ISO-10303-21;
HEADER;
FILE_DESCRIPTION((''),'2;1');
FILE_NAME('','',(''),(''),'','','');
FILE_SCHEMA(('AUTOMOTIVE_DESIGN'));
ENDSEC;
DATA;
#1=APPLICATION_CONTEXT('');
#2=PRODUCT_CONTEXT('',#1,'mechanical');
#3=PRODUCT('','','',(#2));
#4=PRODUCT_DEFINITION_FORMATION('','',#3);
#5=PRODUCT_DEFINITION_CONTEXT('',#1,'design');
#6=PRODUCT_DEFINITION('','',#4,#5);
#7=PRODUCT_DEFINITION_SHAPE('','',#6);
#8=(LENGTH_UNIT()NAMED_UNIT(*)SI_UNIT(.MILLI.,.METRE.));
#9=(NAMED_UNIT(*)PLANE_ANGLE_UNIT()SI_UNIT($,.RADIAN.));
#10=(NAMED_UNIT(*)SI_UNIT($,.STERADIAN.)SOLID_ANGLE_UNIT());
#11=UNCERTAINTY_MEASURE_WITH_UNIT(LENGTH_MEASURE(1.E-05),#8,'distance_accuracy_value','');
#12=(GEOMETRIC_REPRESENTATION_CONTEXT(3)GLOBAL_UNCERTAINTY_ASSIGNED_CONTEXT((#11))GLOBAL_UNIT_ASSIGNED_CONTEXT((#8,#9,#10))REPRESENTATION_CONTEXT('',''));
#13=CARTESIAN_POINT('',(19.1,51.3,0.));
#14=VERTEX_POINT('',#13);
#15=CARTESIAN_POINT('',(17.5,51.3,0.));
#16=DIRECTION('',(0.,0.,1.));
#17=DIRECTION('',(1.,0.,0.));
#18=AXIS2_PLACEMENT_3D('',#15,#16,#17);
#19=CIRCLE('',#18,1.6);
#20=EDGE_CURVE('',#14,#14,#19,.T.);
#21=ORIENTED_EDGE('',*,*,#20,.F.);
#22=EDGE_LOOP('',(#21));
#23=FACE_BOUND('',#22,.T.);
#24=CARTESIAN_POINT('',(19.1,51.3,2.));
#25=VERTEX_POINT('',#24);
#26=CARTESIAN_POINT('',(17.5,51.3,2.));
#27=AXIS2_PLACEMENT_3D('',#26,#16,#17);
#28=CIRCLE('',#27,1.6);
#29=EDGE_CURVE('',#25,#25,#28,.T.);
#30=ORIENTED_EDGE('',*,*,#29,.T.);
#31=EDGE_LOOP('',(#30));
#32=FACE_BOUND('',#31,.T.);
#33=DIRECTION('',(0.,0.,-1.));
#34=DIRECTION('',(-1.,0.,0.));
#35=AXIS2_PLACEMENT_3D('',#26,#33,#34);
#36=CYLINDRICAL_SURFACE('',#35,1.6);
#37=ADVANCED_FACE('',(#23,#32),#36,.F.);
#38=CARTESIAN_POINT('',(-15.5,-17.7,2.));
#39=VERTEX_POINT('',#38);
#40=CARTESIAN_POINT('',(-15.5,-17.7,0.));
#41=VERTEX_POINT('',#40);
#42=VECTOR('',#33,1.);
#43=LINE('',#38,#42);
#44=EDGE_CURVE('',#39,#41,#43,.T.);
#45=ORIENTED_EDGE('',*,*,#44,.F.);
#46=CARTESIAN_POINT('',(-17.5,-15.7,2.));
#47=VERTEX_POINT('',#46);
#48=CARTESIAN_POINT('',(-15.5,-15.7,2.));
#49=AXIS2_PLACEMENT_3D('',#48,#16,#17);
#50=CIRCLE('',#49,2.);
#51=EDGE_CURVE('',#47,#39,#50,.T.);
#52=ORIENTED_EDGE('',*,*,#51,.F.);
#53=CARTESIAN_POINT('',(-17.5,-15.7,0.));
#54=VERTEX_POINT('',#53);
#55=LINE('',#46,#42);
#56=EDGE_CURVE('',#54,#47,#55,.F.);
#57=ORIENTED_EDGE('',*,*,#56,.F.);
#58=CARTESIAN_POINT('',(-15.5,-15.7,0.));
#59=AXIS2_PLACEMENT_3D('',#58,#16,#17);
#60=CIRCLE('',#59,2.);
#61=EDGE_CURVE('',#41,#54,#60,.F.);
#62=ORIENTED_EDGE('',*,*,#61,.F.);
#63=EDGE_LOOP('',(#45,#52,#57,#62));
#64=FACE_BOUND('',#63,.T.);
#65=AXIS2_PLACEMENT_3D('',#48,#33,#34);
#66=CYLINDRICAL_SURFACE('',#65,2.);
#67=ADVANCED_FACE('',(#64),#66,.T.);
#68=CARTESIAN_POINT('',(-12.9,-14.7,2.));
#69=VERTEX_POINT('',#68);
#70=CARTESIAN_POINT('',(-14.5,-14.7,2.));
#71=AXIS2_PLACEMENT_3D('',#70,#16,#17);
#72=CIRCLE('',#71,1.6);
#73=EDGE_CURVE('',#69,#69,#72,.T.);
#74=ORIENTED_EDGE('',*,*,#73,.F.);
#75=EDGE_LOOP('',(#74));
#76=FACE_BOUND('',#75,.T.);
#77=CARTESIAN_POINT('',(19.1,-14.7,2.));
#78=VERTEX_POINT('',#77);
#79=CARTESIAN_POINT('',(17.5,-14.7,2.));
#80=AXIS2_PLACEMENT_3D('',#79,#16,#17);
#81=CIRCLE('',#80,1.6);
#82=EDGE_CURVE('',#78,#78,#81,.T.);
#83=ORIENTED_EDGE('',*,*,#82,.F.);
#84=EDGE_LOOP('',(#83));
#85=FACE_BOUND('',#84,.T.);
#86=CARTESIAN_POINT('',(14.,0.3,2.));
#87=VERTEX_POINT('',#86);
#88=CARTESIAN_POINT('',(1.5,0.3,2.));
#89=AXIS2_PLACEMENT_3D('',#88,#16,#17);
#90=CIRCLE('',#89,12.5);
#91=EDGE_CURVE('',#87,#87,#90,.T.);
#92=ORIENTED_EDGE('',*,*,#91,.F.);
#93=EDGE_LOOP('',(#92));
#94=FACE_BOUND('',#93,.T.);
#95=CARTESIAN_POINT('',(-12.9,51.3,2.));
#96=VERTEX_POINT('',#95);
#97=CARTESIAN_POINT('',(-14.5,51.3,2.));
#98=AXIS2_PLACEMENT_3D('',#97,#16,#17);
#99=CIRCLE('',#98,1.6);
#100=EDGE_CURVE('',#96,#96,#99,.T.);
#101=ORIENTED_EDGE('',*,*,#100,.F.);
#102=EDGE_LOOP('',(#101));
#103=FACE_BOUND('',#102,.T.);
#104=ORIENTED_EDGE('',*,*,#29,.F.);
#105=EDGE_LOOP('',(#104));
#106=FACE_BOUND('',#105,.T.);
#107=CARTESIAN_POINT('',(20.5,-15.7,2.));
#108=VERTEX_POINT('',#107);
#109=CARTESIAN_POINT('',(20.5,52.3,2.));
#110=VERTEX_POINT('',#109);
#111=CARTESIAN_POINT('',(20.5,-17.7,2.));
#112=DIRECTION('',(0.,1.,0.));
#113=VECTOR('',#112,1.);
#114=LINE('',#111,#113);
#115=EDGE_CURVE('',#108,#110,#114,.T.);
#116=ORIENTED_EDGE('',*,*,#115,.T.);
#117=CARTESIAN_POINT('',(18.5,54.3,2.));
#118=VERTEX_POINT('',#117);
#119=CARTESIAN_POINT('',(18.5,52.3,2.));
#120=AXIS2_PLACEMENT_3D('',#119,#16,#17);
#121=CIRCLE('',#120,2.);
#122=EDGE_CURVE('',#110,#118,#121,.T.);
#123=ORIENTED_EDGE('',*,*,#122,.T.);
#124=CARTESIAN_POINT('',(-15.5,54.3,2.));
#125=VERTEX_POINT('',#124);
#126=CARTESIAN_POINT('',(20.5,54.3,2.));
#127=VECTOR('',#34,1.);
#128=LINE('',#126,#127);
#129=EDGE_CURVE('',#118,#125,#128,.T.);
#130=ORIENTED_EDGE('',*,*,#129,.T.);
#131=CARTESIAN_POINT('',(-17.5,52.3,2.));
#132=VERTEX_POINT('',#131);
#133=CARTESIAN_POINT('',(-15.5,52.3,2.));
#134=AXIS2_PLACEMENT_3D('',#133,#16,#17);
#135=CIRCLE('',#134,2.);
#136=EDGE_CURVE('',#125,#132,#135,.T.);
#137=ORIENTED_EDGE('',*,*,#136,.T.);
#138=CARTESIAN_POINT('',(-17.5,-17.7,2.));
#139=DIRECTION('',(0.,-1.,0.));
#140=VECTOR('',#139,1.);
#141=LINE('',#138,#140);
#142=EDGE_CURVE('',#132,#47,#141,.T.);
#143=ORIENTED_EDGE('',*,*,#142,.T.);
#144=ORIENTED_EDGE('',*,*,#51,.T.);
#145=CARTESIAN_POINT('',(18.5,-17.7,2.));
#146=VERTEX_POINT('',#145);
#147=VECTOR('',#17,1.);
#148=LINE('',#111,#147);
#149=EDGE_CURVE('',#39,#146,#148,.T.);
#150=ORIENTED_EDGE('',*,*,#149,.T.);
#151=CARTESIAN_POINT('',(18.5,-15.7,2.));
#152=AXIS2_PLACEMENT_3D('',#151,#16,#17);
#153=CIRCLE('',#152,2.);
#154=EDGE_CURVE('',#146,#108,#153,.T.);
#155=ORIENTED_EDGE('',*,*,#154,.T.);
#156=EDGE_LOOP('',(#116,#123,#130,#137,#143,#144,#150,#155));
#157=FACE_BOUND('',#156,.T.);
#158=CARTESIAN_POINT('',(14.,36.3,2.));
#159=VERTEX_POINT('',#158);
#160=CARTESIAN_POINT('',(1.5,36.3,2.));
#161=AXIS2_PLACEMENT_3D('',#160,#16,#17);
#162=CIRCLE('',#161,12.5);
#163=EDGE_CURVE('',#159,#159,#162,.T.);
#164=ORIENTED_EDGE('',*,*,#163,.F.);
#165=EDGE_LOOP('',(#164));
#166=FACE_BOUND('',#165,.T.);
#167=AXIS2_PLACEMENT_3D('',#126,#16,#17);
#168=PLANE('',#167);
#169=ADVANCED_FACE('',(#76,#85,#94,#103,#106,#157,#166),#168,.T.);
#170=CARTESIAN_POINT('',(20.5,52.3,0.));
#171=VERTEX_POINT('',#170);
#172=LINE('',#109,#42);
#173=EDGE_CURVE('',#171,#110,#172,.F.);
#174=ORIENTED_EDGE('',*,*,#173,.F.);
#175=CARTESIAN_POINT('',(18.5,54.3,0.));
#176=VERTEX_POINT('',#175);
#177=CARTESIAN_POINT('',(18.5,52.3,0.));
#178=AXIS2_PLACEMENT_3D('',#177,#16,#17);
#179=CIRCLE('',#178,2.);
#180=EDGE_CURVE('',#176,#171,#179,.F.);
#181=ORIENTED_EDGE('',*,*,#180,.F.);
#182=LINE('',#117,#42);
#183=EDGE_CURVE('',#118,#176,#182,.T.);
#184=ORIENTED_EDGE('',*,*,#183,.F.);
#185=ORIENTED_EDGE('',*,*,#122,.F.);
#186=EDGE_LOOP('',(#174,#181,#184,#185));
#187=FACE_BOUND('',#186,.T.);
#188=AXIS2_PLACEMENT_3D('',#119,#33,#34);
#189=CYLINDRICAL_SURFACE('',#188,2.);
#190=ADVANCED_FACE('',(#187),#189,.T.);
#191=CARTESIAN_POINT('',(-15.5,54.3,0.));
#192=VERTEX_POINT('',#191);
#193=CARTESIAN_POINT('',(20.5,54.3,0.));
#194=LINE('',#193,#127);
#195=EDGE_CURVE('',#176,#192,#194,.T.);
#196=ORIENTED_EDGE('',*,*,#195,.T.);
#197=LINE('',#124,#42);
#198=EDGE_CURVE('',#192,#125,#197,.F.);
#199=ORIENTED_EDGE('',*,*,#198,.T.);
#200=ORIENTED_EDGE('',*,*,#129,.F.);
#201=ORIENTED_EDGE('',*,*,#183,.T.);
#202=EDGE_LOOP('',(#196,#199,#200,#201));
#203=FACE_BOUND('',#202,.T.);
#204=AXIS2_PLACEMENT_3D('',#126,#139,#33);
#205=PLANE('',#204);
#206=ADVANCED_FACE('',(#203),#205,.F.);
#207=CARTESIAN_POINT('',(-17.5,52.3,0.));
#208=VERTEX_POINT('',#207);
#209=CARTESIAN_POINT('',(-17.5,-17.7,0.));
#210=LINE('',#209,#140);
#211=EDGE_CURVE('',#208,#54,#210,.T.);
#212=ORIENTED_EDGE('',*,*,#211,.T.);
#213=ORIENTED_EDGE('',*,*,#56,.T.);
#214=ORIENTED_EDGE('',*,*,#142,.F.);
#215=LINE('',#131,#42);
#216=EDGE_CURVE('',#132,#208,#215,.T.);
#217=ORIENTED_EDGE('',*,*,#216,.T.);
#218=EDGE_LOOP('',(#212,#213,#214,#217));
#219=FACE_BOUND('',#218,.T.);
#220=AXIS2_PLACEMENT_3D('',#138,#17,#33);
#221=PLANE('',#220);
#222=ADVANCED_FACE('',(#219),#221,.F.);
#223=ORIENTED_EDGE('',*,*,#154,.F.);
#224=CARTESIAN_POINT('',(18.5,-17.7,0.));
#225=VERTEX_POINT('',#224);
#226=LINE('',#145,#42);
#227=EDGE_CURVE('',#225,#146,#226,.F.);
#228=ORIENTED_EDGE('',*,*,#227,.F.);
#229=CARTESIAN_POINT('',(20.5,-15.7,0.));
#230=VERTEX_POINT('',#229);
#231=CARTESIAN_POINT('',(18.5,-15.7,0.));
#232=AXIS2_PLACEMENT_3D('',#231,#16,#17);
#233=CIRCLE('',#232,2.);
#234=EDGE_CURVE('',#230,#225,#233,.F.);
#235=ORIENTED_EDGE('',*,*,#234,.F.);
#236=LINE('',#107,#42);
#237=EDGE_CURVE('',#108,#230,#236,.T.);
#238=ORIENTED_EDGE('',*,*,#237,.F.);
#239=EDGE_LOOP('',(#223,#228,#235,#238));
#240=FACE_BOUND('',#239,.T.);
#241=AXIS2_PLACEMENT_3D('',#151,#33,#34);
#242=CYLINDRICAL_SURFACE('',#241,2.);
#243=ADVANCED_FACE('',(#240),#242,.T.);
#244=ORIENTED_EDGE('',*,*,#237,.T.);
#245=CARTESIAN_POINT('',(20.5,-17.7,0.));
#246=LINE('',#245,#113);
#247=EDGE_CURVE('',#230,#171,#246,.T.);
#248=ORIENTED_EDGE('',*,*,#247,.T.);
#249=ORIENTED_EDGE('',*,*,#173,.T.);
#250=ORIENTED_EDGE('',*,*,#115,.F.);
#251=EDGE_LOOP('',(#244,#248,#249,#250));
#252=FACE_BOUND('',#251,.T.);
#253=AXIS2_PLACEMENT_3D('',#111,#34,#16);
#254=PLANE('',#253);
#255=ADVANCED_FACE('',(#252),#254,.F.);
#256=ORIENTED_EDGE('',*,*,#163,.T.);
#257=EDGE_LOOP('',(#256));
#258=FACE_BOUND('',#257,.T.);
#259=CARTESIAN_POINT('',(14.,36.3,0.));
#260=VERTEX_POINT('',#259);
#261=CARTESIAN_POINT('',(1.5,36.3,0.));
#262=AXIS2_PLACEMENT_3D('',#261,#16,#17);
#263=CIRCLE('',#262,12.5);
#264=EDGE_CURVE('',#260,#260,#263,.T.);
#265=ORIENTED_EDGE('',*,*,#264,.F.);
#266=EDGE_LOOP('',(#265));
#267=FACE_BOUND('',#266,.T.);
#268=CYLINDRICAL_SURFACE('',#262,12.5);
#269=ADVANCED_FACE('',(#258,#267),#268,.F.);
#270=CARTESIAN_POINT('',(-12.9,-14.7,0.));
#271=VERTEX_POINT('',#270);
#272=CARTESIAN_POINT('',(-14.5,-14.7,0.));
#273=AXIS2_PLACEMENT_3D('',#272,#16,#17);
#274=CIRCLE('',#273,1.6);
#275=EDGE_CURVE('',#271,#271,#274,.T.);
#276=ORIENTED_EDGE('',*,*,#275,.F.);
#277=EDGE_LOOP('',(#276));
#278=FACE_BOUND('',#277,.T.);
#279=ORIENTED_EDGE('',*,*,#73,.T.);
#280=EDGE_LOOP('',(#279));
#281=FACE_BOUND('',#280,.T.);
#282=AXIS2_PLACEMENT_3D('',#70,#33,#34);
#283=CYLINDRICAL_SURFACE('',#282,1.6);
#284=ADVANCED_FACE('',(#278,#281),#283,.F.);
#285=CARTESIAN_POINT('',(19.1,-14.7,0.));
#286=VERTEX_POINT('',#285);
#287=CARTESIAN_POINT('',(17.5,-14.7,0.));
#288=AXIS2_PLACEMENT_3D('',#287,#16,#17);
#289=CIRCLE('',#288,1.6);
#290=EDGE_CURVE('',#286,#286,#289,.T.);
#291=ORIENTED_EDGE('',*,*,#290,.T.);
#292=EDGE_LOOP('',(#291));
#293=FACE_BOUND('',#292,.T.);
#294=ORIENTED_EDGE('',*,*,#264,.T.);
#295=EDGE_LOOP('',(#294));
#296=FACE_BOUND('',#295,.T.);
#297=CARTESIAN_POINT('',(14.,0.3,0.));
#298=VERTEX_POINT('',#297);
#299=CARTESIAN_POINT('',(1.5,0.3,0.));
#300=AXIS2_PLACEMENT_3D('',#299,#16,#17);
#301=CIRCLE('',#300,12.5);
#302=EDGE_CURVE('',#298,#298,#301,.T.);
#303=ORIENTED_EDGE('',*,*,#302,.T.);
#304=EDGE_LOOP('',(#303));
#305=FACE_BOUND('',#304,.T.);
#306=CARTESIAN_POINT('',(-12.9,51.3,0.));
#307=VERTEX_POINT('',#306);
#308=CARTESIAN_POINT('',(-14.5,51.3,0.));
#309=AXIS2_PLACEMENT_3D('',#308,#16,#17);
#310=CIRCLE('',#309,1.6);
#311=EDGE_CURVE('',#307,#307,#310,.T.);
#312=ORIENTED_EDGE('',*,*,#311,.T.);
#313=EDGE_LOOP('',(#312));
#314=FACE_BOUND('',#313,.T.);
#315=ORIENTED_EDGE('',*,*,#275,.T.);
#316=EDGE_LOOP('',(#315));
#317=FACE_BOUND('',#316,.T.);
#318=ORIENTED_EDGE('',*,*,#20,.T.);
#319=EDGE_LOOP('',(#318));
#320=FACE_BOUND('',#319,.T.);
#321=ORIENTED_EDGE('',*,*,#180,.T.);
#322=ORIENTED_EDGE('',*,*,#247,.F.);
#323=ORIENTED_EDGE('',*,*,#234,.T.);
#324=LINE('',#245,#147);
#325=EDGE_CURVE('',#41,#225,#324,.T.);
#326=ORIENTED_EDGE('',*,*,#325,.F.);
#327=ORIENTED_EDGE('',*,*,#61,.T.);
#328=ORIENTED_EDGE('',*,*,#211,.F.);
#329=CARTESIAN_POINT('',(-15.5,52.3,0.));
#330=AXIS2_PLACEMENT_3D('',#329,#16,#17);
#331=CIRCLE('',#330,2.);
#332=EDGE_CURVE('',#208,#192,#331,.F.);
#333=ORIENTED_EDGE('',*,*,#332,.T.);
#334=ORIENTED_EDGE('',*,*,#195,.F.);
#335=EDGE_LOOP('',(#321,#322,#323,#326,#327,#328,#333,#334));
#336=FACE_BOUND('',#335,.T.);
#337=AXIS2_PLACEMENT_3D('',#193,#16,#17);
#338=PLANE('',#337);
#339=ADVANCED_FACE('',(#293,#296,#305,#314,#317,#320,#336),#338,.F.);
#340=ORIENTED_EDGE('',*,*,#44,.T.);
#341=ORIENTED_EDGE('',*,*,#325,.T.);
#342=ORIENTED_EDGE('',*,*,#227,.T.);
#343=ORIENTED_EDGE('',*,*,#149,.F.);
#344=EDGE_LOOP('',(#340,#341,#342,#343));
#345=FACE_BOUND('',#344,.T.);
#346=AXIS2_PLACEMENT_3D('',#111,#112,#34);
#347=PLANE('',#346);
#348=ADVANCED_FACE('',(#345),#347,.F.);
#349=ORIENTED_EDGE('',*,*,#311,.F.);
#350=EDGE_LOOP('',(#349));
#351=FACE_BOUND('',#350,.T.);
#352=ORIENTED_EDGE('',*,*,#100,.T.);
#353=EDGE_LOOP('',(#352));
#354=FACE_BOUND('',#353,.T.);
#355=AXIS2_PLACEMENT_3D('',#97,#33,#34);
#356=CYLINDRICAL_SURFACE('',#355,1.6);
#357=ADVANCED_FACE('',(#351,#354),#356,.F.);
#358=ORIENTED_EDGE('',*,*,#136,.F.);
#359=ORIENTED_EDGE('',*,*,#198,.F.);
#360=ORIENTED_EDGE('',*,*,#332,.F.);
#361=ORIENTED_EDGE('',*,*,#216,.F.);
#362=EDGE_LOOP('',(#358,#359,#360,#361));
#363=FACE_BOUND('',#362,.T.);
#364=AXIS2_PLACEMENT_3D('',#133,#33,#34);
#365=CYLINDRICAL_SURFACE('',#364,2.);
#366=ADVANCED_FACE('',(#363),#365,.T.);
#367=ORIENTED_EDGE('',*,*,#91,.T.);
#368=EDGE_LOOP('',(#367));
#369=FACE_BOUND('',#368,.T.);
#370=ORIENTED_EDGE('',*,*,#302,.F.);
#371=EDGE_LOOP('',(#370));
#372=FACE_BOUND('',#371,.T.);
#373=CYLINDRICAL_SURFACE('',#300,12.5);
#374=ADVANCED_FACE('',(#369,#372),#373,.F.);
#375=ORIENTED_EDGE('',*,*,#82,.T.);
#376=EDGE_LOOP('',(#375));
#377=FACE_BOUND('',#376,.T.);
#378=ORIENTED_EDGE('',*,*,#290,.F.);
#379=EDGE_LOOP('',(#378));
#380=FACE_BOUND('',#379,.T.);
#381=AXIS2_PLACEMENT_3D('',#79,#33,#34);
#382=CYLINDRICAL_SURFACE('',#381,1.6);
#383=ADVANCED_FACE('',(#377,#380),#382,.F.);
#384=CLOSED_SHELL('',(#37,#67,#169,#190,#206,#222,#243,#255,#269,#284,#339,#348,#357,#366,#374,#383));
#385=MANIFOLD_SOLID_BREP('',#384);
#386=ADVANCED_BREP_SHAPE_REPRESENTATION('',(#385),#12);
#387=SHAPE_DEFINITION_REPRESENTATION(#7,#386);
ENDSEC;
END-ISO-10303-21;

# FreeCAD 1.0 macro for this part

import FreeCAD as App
import Part
import Sketcher
from FreeCAD import Vector
Q = App.Units.Quantity


def edges_at(feature, points):
    """Names of the edges that pass closest to the given points."""
    edges = feature.Shape.Edges
    near = lambda p: min(range(len(edges)), key=lambda i: edges[i].distToShape(Part.Vertex(*p))[0])
    return sorted({f"Edge{near(p) + 1}" for p in points})

doc = App.newDocument("Part")
body = doc.addObject("PartDesign::Body", "Body")

# Sketch on XY plane
sketch1 = doc.addObject("Sketcher::SketchObject", "Sketch")
body.addObject(sketch1)
sketch1.AttachmentSupport = (doc.XY_Plane, [""])
sketch1.MapMode = "FlatFace"
sketch1.addGeometry(Part.LineSegment(Vector(-17.5, 54.3, 0), Vector(-17.5, -17.7, 0)), False)
sketch1.addGeometry(Part.LineSegment(Vector(-17.5, -17.7, 0), Vector(20.5, -17.7, 0)), False)
sketch1.addGeometry(Part.LineSegment(Vector(20.5, -17.7, 0), Vector(20.5, 54.3, 0)), False)
sketch1.addGeometry(Part.LineSegment(Vector(20.5, 54.3, 0), Vector(-17.5, 54.3, 0)), False)
sketch1.addGeometry(Part.Circle(Vector(-14.5, -14.7, 0), Vector(0, 0, 1), 1.6), False)
sketch1.addGeometry(Part.Circle(Vector(17.5, -14.7, 0), Vector(0, 0, 1), 1.6), False)
sketch1.addGeometry(Part.Circle(Vector(-14.5, 51.3, 0), Vector(0, 0, 1), 1.6), False)
sketch1.addGeometry(Part.Circle(Vector(17.5, 51.3, 0), Vector(0, 0, 1), 1.6), False)
sketch1.addConstraint(Sketcher.Constraint("Coincident", 0, 2, 1, 1))
sketch1.addConstraint(Sketcher.Constraint("Coincident", 1, 2, 2, 1))
sketch1.addConstraint(Sketcher.Constraint("Coincident", 2, 2, 3, 1))
sketch1.addConstraint(Sketcher.Constraint("Coincident", 3, 2, 0, 1))
sketch1.addConstraint(Sketcher.Constraint("Vertical", 0))
sketch1.addConstraint(Sketcher.Constraint("Horizontal", 1))
sketch1.addConstraint(Sketcher.Constraint("Vertical", 2))
sketch1.addConstraint(Sketcher.Constraint("Horizontal", 3))
sketch1.addConstraint(Sketcher.Constraint("Equal", 4, 5))
sketch1.addConstraint(Sketcher.Constraint("Equal", 5, 6))
sketch1.addConstraint(Sketcher.Constraint("Equal", 6, 7))
sketch1.addConstraint(Sketcher.Constraint("Horizontal", 4, 3, 5, 3))
sketch1.addConstraint(Sketcher.Constraint("Horizontal", 6, 3, 7, 3))
sketch1.addConstraint(Sketcher.Constraint("Vertical", 4, 3, 6, 3))
sketch1.addConstraint(Sketcher.Constraint("Vertical", 5, 3, 7, 3))
sketch1.addConstraint(Sketcher.Constraint("Diameter", 4, Q("3.2 mm")))
sketch1.addConstraint(Sketcher.Constraint("DistanceX", 1, 1, 1, 2, Q("38 mm")))
sketch1.addConstraint(Sketcher.Constraint("DistanceY", 0, 2, 0, 1, Q("72 mm")))
sketch1.addConstraint(Sketcher.Constraint("DistanceX", 4, 3, 5, 3, Q("32 mm")))
sketch1.addConstraint(Sketcher.Constraint("DistanceY", 4, 3, 6, 3, Q("66 mm")))
sketch1.addConstraint(Sketcher.Constraint("DistanceX", 0, 2, 4, 3, Q("3 mm")))
sketch1.addConstraint(Sketcher.Constraint("DistanceY", 0, 2, 4, 3, Q("3 mm")))
sketch1.addConstraint(Sketcher.Constraint("DistanceX", 4, 3, -1, 1, Q("14.5 mm")))
sketch1.addConstraint(Sketcher.Constraint("DistanceY", 4, 3, -1, 1, Q("14.7 mm")))
pad1 = doc.addObject("PartDesign::Pad", "Pad")
body.addObject(pad1)
pad1.Profile = sketch1
pad1.Length = 2

# Sketch on XY plane
sketch2 = doc.addObject("Sketcher::SketchObject", "Sketch001")
body.addObject(sketch2)
sketch2.AttachmentSupport = (doc.XY_Plane, [""])
sketch2.MapMode = "FlatFace"
sketch2.AttachmentOffset = App.Placement(Vector(0, 0, 2), App.Rotation())
sketch2.addGeometry(Part.Circle(Vector(2, 0, 0), Vector(0, 0, 1), 12), False)
sketch2.addGeometry(Part.Circle(Vector(2, 36, 0), Vector(0, 0, 1), 12), False)
sketch2.addConstraint(Sketcher.Constraint("Equal", 0, 1))
sketch2.addConstraint(Sketcher.Constraint("Vertical", 0, 3, 1, 3))
sketch2.addConstraint(Sketcher.Constraint("Diameter", 0, Q("25 mm")))
sketch2.addConstraint(Sketcher.Constraint("DistanceY", 0, 3, 1, 3, Q("36 mm")))
sketch2.addConstraint(Sketcher.Constraint("DistanceX", -1, 1, 0, 3, Q("1.5 mm")))
sketch2.addConstraint(Sketcher.Constraint("DistanceY", -1, 1, 0, 3, Q("0.3 mm")))
pocket1 = doc.addObject("PartDesign::Pocket", "Pocket")
body.addObject(pocket1)
pocket1.Profile = sketch2
pocket1.Type = "ThroughAll"
doc.recompute()

fillet = doc.addObject("PartDesign::Fillet", "Fillet")
body.addObject(fillet)
fillet.Base = (pocket1, edges_at(pocket1, [
    (20.5, -17.7, 1),
    (-17.5, -17.7, 1),
    (-17.5, 54.3, 1),
    (20.5, 54.3, 1),
]))
fillet.Radius = 2

doc.recompute()
